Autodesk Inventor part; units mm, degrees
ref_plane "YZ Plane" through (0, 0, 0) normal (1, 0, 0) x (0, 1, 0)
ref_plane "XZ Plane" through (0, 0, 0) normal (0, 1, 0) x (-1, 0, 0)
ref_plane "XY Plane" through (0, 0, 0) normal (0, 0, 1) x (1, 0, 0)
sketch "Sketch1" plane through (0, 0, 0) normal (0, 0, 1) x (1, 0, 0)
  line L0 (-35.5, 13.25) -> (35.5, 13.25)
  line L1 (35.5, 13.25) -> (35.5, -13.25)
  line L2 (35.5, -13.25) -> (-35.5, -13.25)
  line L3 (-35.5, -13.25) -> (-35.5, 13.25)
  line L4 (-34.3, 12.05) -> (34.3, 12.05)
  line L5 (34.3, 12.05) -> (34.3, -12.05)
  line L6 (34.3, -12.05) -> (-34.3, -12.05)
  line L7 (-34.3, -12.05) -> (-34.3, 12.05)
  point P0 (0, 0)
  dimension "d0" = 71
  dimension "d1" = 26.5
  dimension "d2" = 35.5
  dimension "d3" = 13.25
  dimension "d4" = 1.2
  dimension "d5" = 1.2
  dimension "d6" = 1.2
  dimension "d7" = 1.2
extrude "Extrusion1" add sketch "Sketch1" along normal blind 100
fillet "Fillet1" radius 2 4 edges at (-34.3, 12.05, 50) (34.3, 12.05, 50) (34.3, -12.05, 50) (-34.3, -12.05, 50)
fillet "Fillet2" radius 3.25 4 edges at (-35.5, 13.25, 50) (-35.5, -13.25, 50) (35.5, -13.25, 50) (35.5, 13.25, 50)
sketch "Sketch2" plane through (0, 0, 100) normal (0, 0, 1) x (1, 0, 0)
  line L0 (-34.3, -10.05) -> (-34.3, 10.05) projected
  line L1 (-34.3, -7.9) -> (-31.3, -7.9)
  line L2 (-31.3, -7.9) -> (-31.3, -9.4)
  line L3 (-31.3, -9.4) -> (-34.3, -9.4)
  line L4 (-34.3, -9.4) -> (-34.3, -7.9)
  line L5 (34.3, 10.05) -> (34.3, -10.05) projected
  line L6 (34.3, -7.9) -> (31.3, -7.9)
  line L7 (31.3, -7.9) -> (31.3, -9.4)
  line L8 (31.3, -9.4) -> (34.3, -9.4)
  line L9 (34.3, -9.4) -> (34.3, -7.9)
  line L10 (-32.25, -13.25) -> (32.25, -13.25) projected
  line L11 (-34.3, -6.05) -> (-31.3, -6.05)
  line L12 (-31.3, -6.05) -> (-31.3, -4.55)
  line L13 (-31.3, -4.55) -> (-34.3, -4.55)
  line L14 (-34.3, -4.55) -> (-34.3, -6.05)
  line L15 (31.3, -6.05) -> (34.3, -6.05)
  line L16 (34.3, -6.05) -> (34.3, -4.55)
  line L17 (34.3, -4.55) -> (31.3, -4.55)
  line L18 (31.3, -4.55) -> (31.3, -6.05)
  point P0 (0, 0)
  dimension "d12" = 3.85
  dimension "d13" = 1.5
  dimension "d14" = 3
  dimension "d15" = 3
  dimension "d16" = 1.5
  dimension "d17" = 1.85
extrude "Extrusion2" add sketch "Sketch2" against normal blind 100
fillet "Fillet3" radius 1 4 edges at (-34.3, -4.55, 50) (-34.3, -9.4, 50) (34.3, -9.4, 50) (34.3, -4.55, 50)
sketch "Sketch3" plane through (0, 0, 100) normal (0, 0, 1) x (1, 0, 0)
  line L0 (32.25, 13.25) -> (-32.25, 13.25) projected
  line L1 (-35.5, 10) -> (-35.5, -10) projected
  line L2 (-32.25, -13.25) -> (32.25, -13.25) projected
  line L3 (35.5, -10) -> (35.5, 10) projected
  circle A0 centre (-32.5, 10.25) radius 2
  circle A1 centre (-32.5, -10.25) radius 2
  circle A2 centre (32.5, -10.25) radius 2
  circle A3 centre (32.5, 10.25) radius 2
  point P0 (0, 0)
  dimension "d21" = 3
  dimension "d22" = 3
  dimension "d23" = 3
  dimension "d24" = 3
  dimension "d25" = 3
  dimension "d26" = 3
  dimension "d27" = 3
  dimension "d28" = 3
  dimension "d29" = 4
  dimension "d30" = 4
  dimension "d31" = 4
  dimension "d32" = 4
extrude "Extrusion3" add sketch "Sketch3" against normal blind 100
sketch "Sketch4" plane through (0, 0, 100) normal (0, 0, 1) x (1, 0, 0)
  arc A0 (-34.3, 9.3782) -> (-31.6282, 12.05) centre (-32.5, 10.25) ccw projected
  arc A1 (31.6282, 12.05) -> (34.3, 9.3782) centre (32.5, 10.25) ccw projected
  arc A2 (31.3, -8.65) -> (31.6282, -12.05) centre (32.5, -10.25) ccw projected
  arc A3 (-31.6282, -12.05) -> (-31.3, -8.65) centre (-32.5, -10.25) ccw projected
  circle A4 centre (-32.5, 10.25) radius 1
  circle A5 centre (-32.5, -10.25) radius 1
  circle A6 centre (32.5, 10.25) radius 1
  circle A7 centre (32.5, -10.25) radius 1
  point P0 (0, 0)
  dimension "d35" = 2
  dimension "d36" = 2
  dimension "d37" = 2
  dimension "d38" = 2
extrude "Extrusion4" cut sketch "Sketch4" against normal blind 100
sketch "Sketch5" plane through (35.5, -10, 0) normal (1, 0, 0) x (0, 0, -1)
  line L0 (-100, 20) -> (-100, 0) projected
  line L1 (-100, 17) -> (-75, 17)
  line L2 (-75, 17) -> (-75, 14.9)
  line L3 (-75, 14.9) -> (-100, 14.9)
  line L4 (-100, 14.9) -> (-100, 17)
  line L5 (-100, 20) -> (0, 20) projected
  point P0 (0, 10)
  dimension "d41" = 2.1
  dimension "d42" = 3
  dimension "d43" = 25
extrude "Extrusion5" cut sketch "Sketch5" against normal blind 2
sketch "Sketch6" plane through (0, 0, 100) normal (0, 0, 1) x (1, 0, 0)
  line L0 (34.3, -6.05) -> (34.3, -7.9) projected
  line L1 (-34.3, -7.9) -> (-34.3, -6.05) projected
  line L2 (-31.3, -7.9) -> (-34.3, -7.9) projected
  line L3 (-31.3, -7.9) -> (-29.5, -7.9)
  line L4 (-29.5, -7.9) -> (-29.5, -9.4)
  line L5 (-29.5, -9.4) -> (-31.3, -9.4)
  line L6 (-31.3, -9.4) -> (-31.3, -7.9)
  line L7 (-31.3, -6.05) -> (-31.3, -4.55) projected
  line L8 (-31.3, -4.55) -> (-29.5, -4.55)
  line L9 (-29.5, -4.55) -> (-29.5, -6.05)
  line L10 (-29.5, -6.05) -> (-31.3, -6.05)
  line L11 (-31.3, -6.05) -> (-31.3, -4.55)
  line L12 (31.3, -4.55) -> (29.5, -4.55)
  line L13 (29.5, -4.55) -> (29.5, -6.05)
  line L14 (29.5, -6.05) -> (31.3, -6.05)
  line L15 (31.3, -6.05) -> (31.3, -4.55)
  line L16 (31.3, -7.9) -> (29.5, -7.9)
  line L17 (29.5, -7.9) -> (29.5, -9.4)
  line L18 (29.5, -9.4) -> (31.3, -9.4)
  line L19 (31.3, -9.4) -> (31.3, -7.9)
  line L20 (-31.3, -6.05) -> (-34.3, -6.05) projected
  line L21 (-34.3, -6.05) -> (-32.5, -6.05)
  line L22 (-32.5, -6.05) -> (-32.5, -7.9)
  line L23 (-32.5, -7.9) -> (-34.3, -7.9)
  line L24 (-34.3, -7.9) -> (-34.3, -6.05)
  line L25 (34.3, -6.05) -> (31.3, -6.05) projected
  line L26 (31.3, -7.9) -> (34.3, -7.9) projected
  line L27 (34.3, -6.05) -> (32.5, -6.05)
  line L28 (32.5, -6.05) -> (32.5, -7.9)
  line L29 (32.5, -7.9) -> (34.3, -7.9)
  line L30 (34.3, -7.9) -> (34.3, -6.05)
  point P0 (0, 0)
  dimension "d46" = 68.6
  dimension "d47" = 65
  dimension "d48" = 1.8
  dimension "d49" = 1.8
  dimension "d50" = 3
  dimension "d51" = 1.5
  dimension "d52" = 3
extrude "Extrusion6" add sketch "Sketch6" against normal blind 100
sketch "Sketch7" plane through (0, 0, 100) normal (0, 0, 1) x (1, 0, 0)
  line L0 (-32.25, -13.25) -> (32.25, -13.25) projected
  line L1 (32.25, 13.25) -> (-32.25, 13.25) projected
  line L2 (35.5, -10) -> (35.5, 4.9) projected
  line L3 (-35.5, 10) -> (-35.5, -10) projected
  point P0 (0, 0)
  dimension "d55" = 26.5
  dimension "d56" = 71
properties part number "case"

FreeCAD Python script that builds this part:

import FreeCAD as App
import Part
import Sketcher
Q = App.Units.Quantity


def edges_at(feature, points):
    """Names of the edges that pass closest to the given points."""
    edges = feature.Shape.Edges
    near = lambda p: min(range(len(edges)), key=lambda i: edges[i].distToShape(Part.Vertex(*p))[0])
    return sorted({f"Edge{near(p) + 1}" for p in points})

doc = App.newDocument("Part")
body = doc.addObject("PartDesign::Body", "Body")

# Sketch on XY plane
sketch1 = body.newObject("Sketcher::SketchObject", "Sketch")
sketch1.AttachmentSupport = (doc.getObject("XY_Plane"), [""])
sketch1.MapMode = "FlatFace"
sketch1.addGeometry([
    Part.LineSegment(App.Vector(36, 13, 0), App.Vector(-36, 13, 0)),  # 0
    Part.LineSegment(App.Vector(-36, 13, 0), App.Vector(-36, -13, 0)),  # 1
    Part.LineSegment(App.Vector(-36, -13, 0), App.Vector(36, -13, 0)),  # 2
    Part.LineSegment(App.Vector(36, -13, 0), App.Vector(36, 13, 0)),  # 3
    Part.LineSegment(App.Vector(-34, -12, 0), App.Vector(-34, 12, 0)),  # 4
    Part.LineSegment(App.Vector(-34, 12, 0), App.Vector(34, 12, 0)),  # 5
    Part.LineSegment(App.Vector(34, 12, 0), App.Vector(34, -12, 0)),  # 6
    Part.LineSegment(App.Vector(34, -12, 0), App.Vector(-34, -12, 0)),  # 7
], False)
sketch1.addConstraint([
    Sketcher.Constraint("Coincident", 0, 2, 1, 1),
    Sketcher.Constraint("Coincident", 1, 2, 2, 1),
    Sketcher.Constraint("Coincident", 2, 2, 3, 1),
    Sketcher.Constraint("Coincident", 3, 2, 0, 1),
    Sketcher.Constraint("Coincident", 4, 2, 5, 1),
    Sketcher.Constraint("Coincident", 5, 2, 6, 1),
    Sketcher.Constraint("Coincident", 6, 2, 7, 1),
    Sketcher.Constraint("Coincident", 7, 2, 4, 1),
    Sketcher.Constraint("Horizontal", 0),
    Sketcher.Constraint("Vertical", 1),
    Sketcher.Constraint("Horizontal", 2),
    Sketcher.Constraint("Vertical", 3),
    Sketcher.Constraint("Vertical", 4),
    Sketcher.Constraint("Horizontal", 5),
    Sketcher.Constraint("Vertical", 6),
    Sketcher.Constraint("Horizontal", 7),
    Sketcher.Constraint("Symmetric", 0, 2, 2, 2, -1, 1),
    Sketcher.Constraint("Symmetric", 4, 2, 6, 2, -1, 1),
    Sketcher.Constraint("DistanceX", 0, 2, 0, 1, Q("71 mm")),
    Sketcher.Constraint("DistanceY", 1, 2, 1, 1, Q("26.5 mm")),
    Sketcher.Constraint("DistanceX", 0, 2, 4, 2, Q("1.2 mm")),
    Sketcher.Constraint("DistanceY", 4, 2, 0, 2, Q("1.2 mm")),
])
pad1 = body.newObject("PartDesign::Pad", "Pad")
pad1.Profile = sketch1
pad1.Length = 100
doc.recompute()

fillet = body.newObject("PartDesign::Fillet", "Fillet")
fillet.Base = (pad1, edges_at(pad1, [
    (-34.3, 12.05, 50),
    (34.3, 12.05, 50),
    (34.3, -12.05, 50),
    (-34.3, -12.05, 50),
]))
fillet.Radius = 2
doc.recompute()

fillet2 = body.newObject("PartDesign::Fillet", "Fillet001")
fillet2.Base = (fillet, edges_at(fillet, [
    (-35.5, 13.25, 50),
    (-35.5, -13.25, 50),
    (35.5, -13.25, 50),
    (35.5, 13.25, 50),
]))
fillet2.Radius = 3.25

# Sketch on XY plane
sketch2 = body.newObject("Sketcher::SketchObject", "Sketch001")
sketch2.AttachmentSupport = (doc.getObject("XY_Plane"), [""])
sketch2.MapMode = "FlatFace"
sketch2.AttachmentOffset = App.Placement(App.Vector(0, 0, 100), App.Rotation())
sketch2.addGeometry([
    Part.LineSegment(App.Vector(-34.3, -4.5, 0), App.Vector(-34.3, -6, 0)),  # 0
    Part.LineSegment(App.Vector(-34.3, -6, 0), App.Vector(-31.3, -6, 0)),  # 1
    Part.LineSegment(App.Vector(-31.3, -6, 0), App.Vector(-31.3, -4.5, 0)),  # 2
    Part.LineSegment(App.Vector(-31.3, -4.5, 0), App.Vector(-34.3, -4.5, 0)),  # 3
    Part.LineSegment(App.Vector(-34.3, -7.9, 0), App.Vector(-34.3, -9.4, 0)),  # 4
    Part.LineSegment(App.Vector(-34.3, -9.4, 0), App.Vector(-31.3, -9.4, 0)),  # 5
    Part.LineSegment(App.Vector(-31.3, -9.4, 0), App.Vector(-31.3, -7.9, 0)),  # 6
    Part.LineSegment(App.Vector(-31.3, -7.9, 0), App.Vector(-34.3, -7.9, 0)),  # 7
    Part.LineSegment(App.Vector(34.3, -9.4, 0), App.Vector(34.3, -7.9, 0)),  # 8
    Part.LineSegment(App.Vector(34.3, -7.9, 0), App.Vector(31.3, -7.9, 0)),  # 9
    Part.LineSegment(App.Vector(31.3, -7.9, 0), App.Vector(31.3, -9.4, 0)),  # 10
    Part.LineSegment(App.Vector(31.3, -9.4, 0), App.Vector(34.3, -9.4, 0)),  # 11
    Part.LineSegment(App.Vector(34.3, -6, 0), App.Vector(34.3, -4.5, 0)),  # 12
    Part.LineSegment(App.Vector(34.3, -4.5, 0), App.Vector(31.3, -4.5, 0)),  # 13
    Part.LineSegment(App.Vector(31.3, -4.5, 0), App.Vector(31.3, -6, 0)),  # 14
    Part.LineSegment(App.Vector(31.3, -6, 0), App.Vector(34.3, -6, 0)),  # 15
], False)
sketch2.addConstraint([
    Sketcher.Constraint("Coincident", 0, 2, 1, 1),
    Sketcher.Constraint("Coincident", 1, 2, 2, 1),
    Sketcher.Constraint("Coincident", 2, 2, 3, 1),
    Sketcher.Constraint("Coincident", 3, 2, 0, 1),
    Sketcher.Constraint("Coincident", 4, 2, 5, 1),
    Sketcher.Constraint("Coincident", 5, 2, 6, 1),
    Sketcher.Constraint("Coincident", 6, 2, 7, 1),
    Sketcher.Constraint("Coincident", 7, 2, 4, 1),
    Sketcher.Constraint("Coincident", 8, 2, 9, 1),
    Sketcher.Constraint("Coincident", 9, 2, 10, 1),
    Sketcher.Constraint("Coincident", 10, 2, 11, 1),
    Sketcher.Constraint("Coincident", 11, 2, 8, 1),
    Sketcher.Constraint("Coincident", 12, 2, 13, 1),
    Sketcher.Constraint("Coincident", 13, 2, 14, 1),
    Sketcher.Constraint("Coincident", 14, 2, 15, 1),
    Sketcher.Constraint("Coincident", 15, 2, 12, 1),
    Sketcher.Constraint("Vertical", 0),
    Sketcher.Constraint("Horizontal", 1),
    Sketcher.Constraint("Vertical", 2),
    Sketcher.Constraint("Horizontal", 3),
    Sketcher.Constraint("Vertical", 4),
    Sketcher.Constraint("Horizontal", 5),
    Sketcher.Constraint("Vertical", 6),
    Sketcher.Constraint("Horizontal", 7),
    Sketcher.Constraint("Vertical", 8),
    Sketcher.Constraint("Horizontal", 9),
    Sketcher.Constraint("Vertical", 10),
    Sketcher.Constraint("Horizontal", 11),
    Sketcher.Constraint("Vertical", 12),
    Sketcher.Constraint("Horizontal", 13),
    Sketcher.Constraint("Vertical", 14),
    Sketcher.Constraint("Horizontal", 15),
    Sketcher.Constraint("Symmetric", 7, 2, 8, 2, -2),
    Sketcher.Constraint("Symmetric", 5, 2, 10, 2, -2),
    Sketcher.Constraint("Symmetric", 3, 2, 12, 2, -2),
    Sketcher.Constraint("Symmetric", 1, 2, 14, 2, -2),
    Sketcher.Constraint("Vertical", 3, 2, 4, 2),
    Sketcher.Constraint("Vertical", 2, 2, 5, 2),
    Sketcher.Constraint("Equal", 2, 4),
    Sketcher.Constraint("DistanceX", 1, 1, 1, 2, Q("3 mm")),
    Sketcher.Constraint("DistanceY", 0, 2, 0, 1, Q("1.5 mm")),
    Sketcher.Constraint("DistanceY", 6, 2, 1, 2, Q("1.85 mm")),
    Sketcher.Constraint("DistanceX", 0, 2, -1, 1, Q("34.3 mm")),
    Sketcher.Constraint("DistanceY", 4, 2, -1, 1, Q("9.4 mm")),
])
pad2 = body.newObject("PartDesign::Pad", "Pad001")
pad2.Profile = sketch2
pad2.Length = 100
pad2.Reversed = True
doc.recompute()

fillet3 = body.newObject("PartDesign::Fillet", "Fillet002")
fillet3.Base = (pad2, edges_at(pad2, [
    (-34.3, -4.55, 50),
    (-34.3, -9.4, 50),
    (34.3, -9.4, 50),
    (34.3, -4.55, 50),
]))
fillet3.Radius = 1

# Sketch on XY plane
sketch3 = body.newObject("Sketcher::SketchObject", "Sketch002")
sketch3.AttachmentSupport = (doc.getObject("XY_Plane"), [""])
sketch3.MapMode = "FlatFace"
sketch3.AttachmentOffset = App.Placement(App.Vector(0, 0, 100), App.Rotation())
sketch3.addGeometry([
    Part.Circle(App.Vector(-32.5, 10.2, 0), App.Vector(0, 0, 1), 2),
    Part.Circle(App.Vector(-32.5, -10.2, 0), App.Vector(0, 0, 1), 2),
    Part.Circle(App.Vector(32.5, -10.2, 0), App.Vector(0, 0, 1), 2),
    Part.Circle(App.Vector(32.5, 10.2, 0), App.Vector(0, 0, 1), 2),
], False)
sketch3.addConstraint([
    Sketcher.Constraint("Equal", 0, 1),
    Sketcher.Constraint("Equal", 1, 2),
    Sketcher.Constraint("Equal", 2, 3),
    Sketcher.Constraint("Symmetric", 0, 3, 2, 3, -1, 1),
    Sketcher.Constraint("Symmetric", 1, 3, 3, 3, -1, 1),
    Sketcher.Constraint("Symmetric", 1, 3, 2, 3, -2),
    Sketcher.Constraint("Diameter", 0, Q("4 mm")),
    Sketcher.Constraint("DistanceX", 1, 3, 2, 3, Q("65 mm")),
    Sketcher.Constraint("DistanceY", 1, 3, 0, 3, Q("20.5 mm")),
])
pad3 = body.newObject("PartDesign::Pad", "Pad002")
pad3.Profile = sketch3
pad3.Length = 100
pad3.Reversed = True

# Sketch on XY plane
sketch4 = body.newObject("Sketcher::SketchObject", "Sketch003")
sketch4.AttachmentSupport = (doc.getObject("XY_Plane"), [""])
sketch4.MapMode = "FlatFace"
sketch4.AttachmentOffset = App.Placement(App.Vector(0, 0, 100), App.Rotation())
sketch4.addGeometry([
    Part.Circle(App.Vector(-32.5, 10.2, 0), App.Vector(0, 0, 1), 1),
    Part.Circle(App.Vector(-32.5, -10.2, 0), App.Vector(0, 0, 1), 1),
    Part.Circle(App.Vector(32.5, 10.2, 0), App.Vector(0, 0, 1), 1),
    Part.Circle(App.Vector(32.5, -10.2, 0), App.Vector(0, 0, 1), 1),
], False)
sketch4.addConstraint([
    Sketcher.Constraint("Equal", 0, 1),
    Sketcher.Constraint("Equal", 1, 2),
    Sketcher.Constraint("Equal", 2, 3),
    Sketcher.Constraint("Symmetric", 1, 3, 2, 3, -1, 1),
    Sketcher.Constraint("Symmetric", 0, 3, 3, 3, -1, 1),
    Sketcher.Constraint("Symmetric", 0, 3, 2, 3, -2),
    Sketcher.Constraint("Diameter", 0, Q("2 mm")),
    Sketcher.Constraint("DistanceX", 0, 3, 2, 3, Q("65 mm")),
    Sketcher.Constraint("DistanceY", 1, 3, 0, 3, Q("20.5 mm")),
])
pocket1 = body.newObject("PartDesign::Pocket", "Pocket")
pocket1.Profile = sketch4
pocket1.Length = 100

# Sketch on YZ plane
sketch5 = body.newObject("Sketcher::SketchObject", "Sketch004")
sketch5.AttachmentSupport = (doc.getObject("YZ_Plane"), [""])
sketch5.MapMode = "FlatFace"
sketch5.AttachmentOffset = App.Placement(App.Vector(0, 0, 35.5), App.Rotation())
sketch5.addGeometry([
    Part.LineSegment(App.Vector(7, 75, 0), App.Vector(7, 100, 0)),
    Part.LineSegment(App.Vector(7, 100, 0), App.Vector(4.9, 100, 0)),
    Part.LineSegment(App.Vector(4.9, 100, 0), App.Vector(4.9, 75, 0)),
    Part.LineSegment(App.Vector(4.9, 75, 0), App.Vector(7, 75, 0)),
], False)
sketch5.addConstraint([
    Sketcher.Constraint("Coincident", 0, 2, 1, 1),
    Sketcher.Constraint("Coincident", 1, 2, 2, 1),
    Sketcher.Constraint("Coincident", 2, 2, 3, 1),
    Sketcher.Constraint("Coincident", 3, 2, 0, 1),
    Sketcher.Constraint("Vertical", 0),
    Sketcher.Constraint("Horizontal", 1),
    Sketcher.Constraint("Vertical", 2),
    Sketcher.Constraint("Horizontal", 3),
    Sketcher.Constraint("DistanceY", 0, 1, 0, 2, Q("25 mm")),
    Sketcher.Constraint("DistanceX", 1, 2, 1, 1, Q("2.1 mm")),
    Sketcher.Constraint("DistanceX", -1, 1, 0, 2, Q("7 mm")),
    Sketcher.Constraint("DistanceY", -1, 1, 0, 2, Q("100 mm")),
])
pocket2 = body.newObject("PartDesign::Pocket", "Pocket001")
pocket2.Profile = sketch5
pocket2.Length = 2

# Sketch on XY plane
sketch6 = body.newObject("Sketcher::SketchObject", "Sketch005")
sketch6.AttachmentSupport = (doc.getObject("XY_Plane"), [""])
sketch6.MapMode = "FlatFace"
sketch6.AttachmentOffset = App.Placement(App.Vector(0, 0, 100), App.Rotation())
sketch6.addGeometry([
    Part.LineSegment(App.Vector(31.3, -9.4, 0), App.Vector(31.3, -7.9, 0)),  # 0
    Part.LineSegment(App.Vector(31.3, -7.9, 0), App.Vector(29.5, -7.9, 0)),  # 1
    Part.LineSegment(App.Vector(29.5, -7.9, 0), App.Vector(29.5, -9.4, 0)),  # 2
    Part.LineSegment(App.Vector(29.5, -9.4, 0), App.Vector(31.3, -9.4, 0)),  # 3
    Part.LineSegment(App.Vector(29.5, -6, 0), App.Vector(31.3, -6, 0)),  # 4
    Part.LineSegment(App.Vector(31.3, -6, 0), App.Vector(31.3, -4.5, 0)),  # 5
    Part.LineSegment(App.Vector(31.3, -4.5, 0), App.Vector(29.5, -4.5, 0)),  # 6
    Part.LineSegment(App.Vector(29.5, -4.5, 0), App.Vector(29.5, -6, 0)),  # 7
    Part.LineSegment(App.Vector(34.3, -7.9, 0), App.Vector(34.3, -6, 0)),  # 8
    Part.LineSegment(App.Vector(34.3, -6, 0), App.Vector(32.5, -6, 0)),  # 9
    Part.LineSegment(App.Vector(32.5, -6, 0), App.Vector(32.5, -7.9, 0)),  # 10
    Part.LineSegment(App.Vector(32.5, -7.9, 0), App.Vector(34.3, -7.9, 0)),  # 11
    Part.LineSegment(App.Vector(-31.3, -4.5, 0), App.Vector(-31.3, -6, 0)),  # 12
    Part.LineSegment(App.Vector(-31.3, -6, 0), App.Vector(-29.5, -6, 0)),  # 13
    Part.LineSegment(App.Vector(-29.5, -6, 0), App.Vector(-29.5, -4.5, 0)),  # 14
    Part.LineSegment(App.Vector(-29.5, -4.5, 0), App.Vector(-31.3, -4.5, 0)),  # 15
    Part.LineSegment(App.Vector(-29.5, -7.9, 0), App.Vector(-31.3, -7.9, 0)),  # 16
    Part.LineSegment(App.Vector(-31.3, -7.9, 0), App.Vector(-31.3, -9.4, 0)),  # 17
    Part.LineSegment(App.Vector(-31.3, -9.4, 0), App.Vector(-29.5, -9.4, 0)),  # 18
    Part.LineSegment(App.Vector(-29.5, -9.4, 0), App.Vector(-29.5, -7.9, 0)),  # 19
    Part.LineSegment(App.Vector(-34.3, -6, 0), App.Vector(-34.3, -7.9, 0)),  # 20
    Part.LineSegment(App.Vector(-34.3, -7.9, 0), App.Vector(-32.5, -7.9, 0)),  # 21
    Part.LineSegment(App.Vector(-32.5, -7.9, 0), App.Vector(-32.5, -6, 0)),  # 22
    Part.LineSegment(App.Vector(-32.5, -6, 0), App.Vector(-34.3, -6, 0)),  # 23
], False)
sketch6.addConstraint([
    Sketcher.Constraint("Coincident", 0, 2, 1, 1),
    Sketcher.Constraint("Coincident", 1, 2, 2, 1),
    Sketcher.Constraint("Coincident", 2, 2, 3, 1),
    Sketcher.Constraint("Coincident", 3, 2, 0, 1),
    Sketcher.Constraint("Coincident", 4, 2, 5, 1),
    Sketcher.Constraint("Coincident", 5, 2, 6, 1),
    Sketcher.Constraint("Coincident", 6, 2, 7, 1),
    Sketcher.Constraint("Coincident", 7, 2, 4, 1),
    Sketcher.Constraint("Coincident", 8, 2, 9, 1),
    Sketcher.Constraint("Coincident", 9, 2, 10, 1),
    Sketcher.Constraint("Coincident", 10, 2, 11, 1),
    Sketcher.Constraint("Coincident", 11, 2, 8, 1),
    Sketcher.Constraint("Coincident", 12, 2, 13, 1),
    Sketcher.Constraint("Coincident", 13, 2, 14, 1),
    Sketcher.Constraint("Coincident", 14, 2, 15, 1),
    Sketcher.Constraint("Coincident", 15, 2, 12, 1),
    Sketcher.Constraint("Coincident", 16, 2, 17, 1),
    Sketcher.Constraint("Coincident", 17, 2, 18, 1),
    Sketcher.Constraint("Coincident", 18, 2, 19, 1),
    Sketcher.Constraint("Coincident", 19, 2, 16, 1),
    Sketcher.Constraint("Coincident", 20, 2, 21, 1),
    Sketcher.Constraint("Coincident", 21, 2, 22, 1),
    Sketcher.Constraint("Coincident", 22, 2, 23, 1),
    Sketcher.Constraint("Coincident", 23, 2, 20, 1),
    Sketcher.Constraint("Vertical", 0),
    Sketcher.Constraint("Horizontal", 1),
    Sketcher.Constraint("Vertical", 2),
    Sketcher.Constraint("Horizontal", 3),
    Sketcher.Constraint("Horizontal", 4),
    Sketcher.Constraint("Vertical", 5),
    Sketcher.Constraint("Horizontal", 6),
    Sketcher.Constraint("Vertical", 7),
    Sketcher.Constraint("Vertical", 8),
    Sketcher.Constraint("Horizontal", 9),
    Sketcher.Constraint("Vertical", 10),
    Sketcher.Constraint("Horizontal", 11),
    Sketcher.Constraint("Vertical", 12),
    Sketcher.Constraint("Horizontal", 13),
    Sketcher.Constraint("Vertical", 14),
    Sketcher.Constraint("Horizontal", 15),
    Sketcher.Constraint("Horizontal", 16),
    Sketcher.Constraint("Vertical", 17),
    Sketcher.Constraint("Horizontal", 18),
    Sketcher.Constraint("Vertical", 19),
    Sketcher.Constraint("Vertical", 20),
    Sketcher.Constraint("Horizontal", 21),
    Sketcher.Constraint("Vertical", 22),
    Sketcher.Constraint("Horizontal", 23),
    Sketcher.Constraint("Symmetric", 4, 2, 12, 2, -2),
    Sketcher.Constraint("Symmetric", 6, 2, 14, 2, -2),
    Sketcher.Constraint("Symmetric", 0, 2, 16, 2, -2),
    Sketcher.Constraint("Symmetric", 2, 2, 18, 2, -2),
    Sketcher.Constraint("Symmetric", 11, 2, 20, 2, -2),
    Sketcher.Constraint("Symmetric", 9, 2, 22, 2, -2),
    Sketcher.Constraint("Horizontal", 7, 2, 8, 2),
    Sketcher.Constraint("Horizontal", 1, 2, 10, 2),
    Sketcher.Constraint("Vertical", 3, 2, 4, 2),
    Sketcher.Constraint("Vertical", 2, 2, 6, 2),
    Sketcher.Constraint("Equal", 6, 9),
    Sketcher.Constraint("Equal", 2, 5),
    Sketcher.Constraint("DistanceX", 1, 2, 1, 1, Q("1.8 mm")),
    Sketcher.Constraint("DistanceY", 0, 1, 0, 2, Q("1.5 mm")),
    Sketcher.Constraint("DistanceX", 4, 2, 8, 2, Q("3 mm")),
    Sketcher.Constraint("DistanceX", 13, 2, 7, 2, Q("59 mm")),
    Sketcher.Constraint("DistanceY", 8, 1, 8, 2, Q("1.85 mm")),
    Sketcher.Constraint("DistanceY", 0, 2, -1, 1, Q("7.9 mm")),
])
pad4 = body.newObject("PartDesign::Pad", "Pad003")
pad4.Profile = sketch6
pad4.Length = 100
pad4.Reversed = True

doc.recompute()
